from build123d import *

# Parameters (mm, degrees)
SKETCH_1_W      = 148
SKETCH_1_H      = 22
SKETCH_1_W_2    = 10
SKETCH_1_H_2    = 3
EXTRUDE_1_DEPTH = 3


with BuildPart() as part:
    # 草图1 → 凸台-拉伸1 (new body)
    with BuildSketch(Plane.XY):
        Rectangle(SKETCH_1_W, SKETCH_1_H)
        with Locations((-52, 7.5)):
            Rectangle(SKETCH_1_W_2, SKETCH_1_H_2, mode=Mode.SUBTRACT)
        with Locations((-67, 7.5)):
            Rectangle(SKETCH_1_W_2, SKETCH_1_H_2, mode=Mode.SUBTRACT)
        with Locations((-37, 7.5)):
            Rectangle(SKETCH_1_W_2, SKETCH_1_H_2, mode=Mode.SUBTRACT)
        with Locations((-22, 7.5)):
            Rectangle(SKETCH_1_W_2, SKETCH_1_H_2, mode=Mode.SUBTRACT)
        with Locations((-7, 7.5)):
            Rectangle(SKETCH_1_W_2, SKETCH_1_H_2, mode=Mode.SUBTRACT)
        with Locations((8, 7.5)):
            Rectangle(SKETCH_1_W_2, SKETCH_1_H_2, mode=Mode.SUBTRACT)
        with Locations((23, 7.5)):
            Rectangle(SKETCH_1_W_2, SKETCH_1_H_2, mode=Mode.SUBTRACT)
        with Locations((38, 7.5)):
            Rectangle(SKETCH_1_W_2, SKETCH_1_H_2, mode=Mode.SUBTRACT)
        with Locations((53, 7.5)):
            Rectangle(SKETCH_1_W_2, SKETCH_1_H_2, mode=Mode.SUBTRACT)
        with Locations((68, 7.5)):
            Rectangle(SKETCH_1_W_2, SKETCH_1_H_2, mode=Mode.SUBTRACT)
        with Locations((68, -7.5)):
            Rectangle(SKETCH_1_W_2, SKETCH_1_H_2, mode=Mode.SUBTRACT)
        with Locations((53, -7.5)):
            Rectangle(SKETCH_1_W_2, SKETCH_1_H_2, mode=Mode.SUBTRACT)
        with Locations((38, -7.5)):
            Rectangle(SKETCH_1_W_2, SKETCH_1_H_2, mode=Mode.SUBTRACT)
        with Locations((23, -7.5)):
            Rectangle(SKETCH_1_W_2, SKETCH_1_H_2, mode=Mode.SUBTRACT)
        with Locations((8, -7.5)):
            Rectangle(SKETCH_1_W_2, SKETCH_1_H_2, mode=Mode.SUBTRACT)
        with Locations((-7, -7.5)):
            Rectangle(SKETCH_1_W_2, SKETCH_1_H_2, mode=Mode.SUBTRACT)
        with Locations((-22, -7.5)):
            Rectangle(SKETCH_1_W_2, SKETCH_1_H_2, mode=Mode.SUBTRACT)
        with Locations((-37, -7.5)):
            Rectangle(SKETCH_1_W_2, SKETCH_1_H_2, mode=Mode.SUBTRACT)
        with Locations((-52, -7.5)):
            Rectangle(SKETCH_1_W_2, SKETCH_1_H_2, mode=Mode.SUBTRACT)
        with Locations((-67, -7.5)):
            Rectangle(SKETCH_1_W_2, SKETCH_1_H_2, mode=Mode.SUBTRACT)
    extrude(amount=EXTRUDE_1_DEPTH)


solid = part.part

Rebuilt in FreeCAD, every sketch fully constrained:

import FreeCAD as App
import Part
import Sketcher
Q = App.Units.Quantity

doc = App.newDocument("Part")
body = doc.addObject("PartDesign::Body", "Body")

# Sketch on XY plane
sketch1 = doc.addObject("Sketcher::SketchObject", "Sketch")
body.addObject(sketch1)
sketch1.AttachmentSupport = (doc.XY_Plane, [""])
sketch1.MapMode = "FlatFace"
sketch1.addGeometry(Part.LineSegment(App.Vector(-74, 11, 0), App.Vector(-74, -11, 0)), False)
sketch1.addGeometry(Part.LineSegment(App.Vector(-74, -11, 0), App.Vector(74, -11, 0)), False)
sketch1.addGeometry(Part.LineSegment(App.Vector(74, -11, 0), App.Vector(74, 11, 0)), False)
sketch1.addGeometry(Part.LineSegment(App.Vector(74, 11, 0), App.Vector(-74, 11, 0)), False)
sketch1.addGeometry(Part.LineSegment(App.Vector(-62, -9, 0), App.Vector(-72, -9, 0)), False)
sketch1.addGeometry(Part.LineSegment(App.Vector(-72, -9, 0), App.Vector(-72, -6, 0)), False)
sketch1.addGeometry(Part.LineSegment(App.Vector(-72, -6, 0), App.Vector(-62, -6, 0)), False)
sketch1.addGeometry(Part.LineSegment(App.Vector(-62, -6, 0), App.Vector(-62, -9, 0)), False)
sketch1.addGeometry(Part.LineSegment(App.Vector(-47, -9, 0), App.Vector(-57, -9, 0)), False)
sketch1.addGeometry(Part.LineSegment(App.Vector(-57, -9, 0), App.Vector(-57, -6, 0)), False)
sketch1.addGeometry(Part.LineSegment(App.Vector(-57, -6, 0), App.Vector(-47, -6, 0)), False)
sketch1.addGeometry(Part.LineSegment(App.Vector(-47, -6, 0), App.Vector(-47, -9, 0)), False)
sketch1.addGeometry(Part.LineSegment(App.Vector(-32, -9, 0), App.Vector(-42, -9, 0)), False)
sketch1.addGeometry(Part.LineSegment(App.Vector(-42, -9, 0), App.Vector(-42, -6, 0)), False)
sketch1.addGeometry(Part.LineSegment(App.Vector(-42, -6, 0), App.Vector(-32, -6, 0)), False)
sketch1.addGeometry(Part.LineSegment(App.Vector(-32, -6, 0), App.Vector(-32, -9, 0)), False)
sketch1.addGeometry(Part.LineSegment(App.Vector(-17, -9, 0), App.Vector(-27, -9, 0)), False)
sketch1.addGeometry(Part.LineSegment(App.Vector(-27, -9, 0), App.Vector(-27, -6, 0)), False)
sketch1.addGeometry(Part.LineSegment(App.Vector(-27, -6, 0), App.Vector(-17, -6, 0)), False)
sketch1.addGeometry(Part.LineSegment(App.Vector(-17, -6, 0), App.Vector(-17, -9, 0)), False)
sketch1.addGeometry(Part.LineSegment(App.Vector(-2, -9, 0), App.Vector(-12, -9, 0)), False)
sketch1.addGeometry(Part.LineSegment(App.Vector(-12, -9, 0), App.Vector(-12, -6, 0)), False)
sketch1.addGeometry(Part.LineSegment(App.Vector(-12, -6, 0), App.Vector(-2, -6, 0)), False)
sketch1.addGeometry(Part.LineSegment(App.Vector(-2, -6, 0), App.Vector(-2, -9, 0)), False)
sketch1.addGeometry(Part.LineSegment(App.Vector(13, -9, 0), App.Vector(3, -9, 0)), False)
sketch1.addGeometry(Part.LineSegment(App.Vector(3, -9, 0), App.Vector(3, -6, 0)), False)
sketch1.addGeometry(Part.LineSegment(App.Vector(3, -6, 0), App.Vector(13, -6, 0)), False)
sketch1.addGeometry(Part.LineSegment(App.Vector(13, -6, 0), App.Vector(13, -9, 0)), False)
sketch1.addGeometry(Part.LineSegment(App.Vector(28, -9, 0), App.Vector(18, -9, 0)), False)
sketch1.addGeometry(Part.LineSegment(App.Vector(18, -9, 0), App.Vector(18, -6, 0)), False)
sketch1.addGeometry(Part.LineSegment(App.Vector(18, -6, 0), App.Vector(28, -6, 0)), False)
sketch1.addGeometry(Part.LineSegment(App.Vector(28, -6, 0), App.Vector(28, -9, 0)), False)
sketch1.addGeometry(Part.LineSegment(App.Vector(43, -9, 0), App.Vector(33, -9, 0)), False)
sketch1.addGeometry(Part.LineSegment(App.Vector(33, -9, 0), App.Vector(33, -6, 0)), False)
sketch1.addGeometry(Part.LineSegment(App.Vector(33, -6, 0), App.Vector(43, -6, 0)), False)
sketch1.addGeometry(Part.LineSegment(App.Vector(43, -6, 0), App.Vector(43, -9, 0)), False)
sketch1.addGeometry(Part.LineSegment(App.Vector(58, -9, 0), App.Vector(48, -9, 0)), False)
sketch1.addGeometry(Part.LineSegment(App.Vector(48, -9, 0), App.Vector(48, -6, 0)), False)
sketch1.addGeometry(Part.LineSegment(App.Vector(48, -6, 0), App.Vector(58, -6, 0)), False)
sketch1.addGeometry(Part.LineSegment(App.Vector(58, -6, 0), App.Vector(58, -9, 0)), False)
sketch1.addGeometry(Part.LineSegment(App.Vector(73, -9, 0), App.Vector(63, -9, 0)), False)
sketch1.addGeometry(Part.LineSegment(App.Vector(63, -9, 0), App.Vector(63, -6, 0)), False)
sketch1.addGeometry(Part.LineSegment(App.Vector(63, -6, 0), App.Vector(73, -6, 0)), False)
sketch1.addGeometry(Part.LineSegment(App.Vector(73, -6, 0), App.Vector(73, -9, 0)), False)
sketch1.addGeometry(Part.LineSegment(App.Vector(-62, 6, 0), App.Vector(-72, 6, 0)), False)
sketch1.addGeometry(Part.LineSegment(App.Vector(-72, 6, 0), App.Vector(-72, 9, 0)), False)
sketch1.addGeometry(Part.LineSegment(App.Vector(-72, 9, 0), App.Vector(-62, 9, 0)), False)
sketch1.addGeometry(Part.LineSegment(App.Vector(-62, 9, 0), App.Vector(-62, 6, 0)), False)
sketch1.addGeometry(Part.LineSegment(App.Vector(-47, 6, 0), App.Vector(-57, 6, 0)), False)
sketch1.addGeometry(Part.LineSegment(App.Vector(-57, 6, 0), App.Vector(-57, 9, 0)), False)
sketch1.addGeometry(Part.LineSegment(App.Vector(-57, 9, 0), App.Vector(-47, 9, 0)), False)
sketch1.addGeometry(Part.LineSegment(App.Vector(-47, 9, 0), App.Vector(-47, 6, 0)), False)
sketch1.addGeometry(Part.LineSegment(App.Vector(-32, 6, 0), App.Vector(-42, 6, 0)), False)
sketch1.addGeometry(Part.LineSegment(App.Vector(-42, 6, 0), App.Vector(-42, 9, 0)), False)
sketch1.addGeometry(Part.LineSegment(App.Vector(-42, 9, 0), App.Vector(-32, 9, 0)), False)
sketch1.addGeometry(Part.LineSegment(App.Vector(-32, 9, 0), App.Vector(-32, 6, 0)), False)
sketch1.addGeometry(Part.LineSegment(App.Vector(-17, 6, 0), App.Vector(-27, 6, 0)), False)
sketch1.addGeometry(Part.LineSegment(App.Vector(-27, 6, 0), App.Vector(-27, 9, 0)), False)
sketch1.addGeometry(Part.LineSegment(App.Vector(-27, 9, 0), App.Vector(-17, 9, 0)), False)
sketch1.addGeometry(Part.LineSegment(App.Vector(-17, 9, 0), App.Vector(-17, 6, 0)), False)
sketch1.addGeometry(Part.LineSegment(App.Vector(-2, 6, 0), App.Vector(-12, 6, 0)), False)
sketch1.addGeometry(Part.LineSegment(App.Vector(-12, 6, 0), App.Vector(-12, 9, 0)), False)
sketch1.addGeometry(Part.LineSegment(App.Vector(-12, 9, 0), App.Vector(-2, 9, 0)), False)
sketch1.addGeometry(Part.LineSegment(App.Vector(-2, 9, 0), App.Vector(-2, 6, 0)), False)
sketch1.addGeometry(Part.LineSegment(App.Vector(13, 6, 0), App.Vector(3, 6, 0)), False)
sketch1.addGeometry(Part.LineSegment(App.Vector(3, 6, 0), App.Vector(3, 9, 0)), False)
sketch1.addGeometry(Part.LineSegment(App.Vector(3, 9, 0), App.Vector(13, 9, 0)), False)
sketch1.addGeometry(Part.LineSegment(App.Vector(13, 9, 0), App.Vector(13, 6, 0)), False)
sketch1.addGeometry(Part.LineSegment(App.Vector(28, 6, 0), App.Vector(18, 6, 0)), False)
sketch1.addGeometry(Part.LineSegment(App.Vector(18, 6, 0), App.Vector(18, 9, 0)), False)
sketch1.addGeometry(Part.LineSegment(App.Vector(18, 9, 0), App.Vector(28, 9, 0)), False)
sketch1.addGeometry(Part.LineSegment(App.Vector(28, 9, 0), App.Vector(28, 6, 0)), False)
sketch1.addGeometry(Part.LineSegment(App.Vector(43, 6, 0), App.Vector(33, 6, 0)), False)
sketch1.addGeometry(Part.LineSegment(App.Vector(33, 6, 0), App.Vector(33, 9, 0)), False)
sketch1.addGeometry(Part.LineSegment(App.Vector(33, 9, 0), App.Vector(43, 9, 0)), False)
sketch1.addGeometry(Part.LineSegment(App.Vector(43, 9, 0), App.Vector(43, 6, 0)), False)
sketch1.addGeometry(Part.LineSegment(App.Vector(58, 6, 0), App.Vector(48, 6, 0)), False)
sketch1.addGeometry(Part.LineSegment(App.Vector(48, 6, 0), App.Vector(48, 9, 0)), False)
sketch1.addGeometry(Part.LineSegment(App.Vector(48, 9, 0), App.Vector(58, 9, 0)), False)
sketch1.addGeometry(Part.LineSegment(App.Vector(58, 9, 0), App.Vector(58, 6, 0)), False)
sketch1.addGeometry(Part.LineSegment(App.Vector(73, 6, 0), App.Vector(63, 6, 0)), False)
sketch1.addGeometry(Part.LineSegment(App.Vector(63, 6, 0), App.Vector(63, 9, 0)), False)
sketch1.addGeometry(Part.LineSegment(App.Vector(63, 9, 0), App.Vector(73, 9, 0)), False)
sketch1.addGeometry(Part.LineSegment(App.Vector(73, 9, 0), App.Vector(73, 6, 0)), False)
sketch1.addConstraint(Sketcher.Constraint("Coincident", 0, 2, 1, 1))
sketch1.addConstraint(Sketcher.Constraint("Coincident", 1, 2, 2, 1))
sketch1.addConstraint(Sketcher.Constraint("Coincident", 2, 2, 3, 1))
sketch1.addConstraint(Sketcher.Constraint("Coincident", 3, 2, 0, 1))
sketch1.addConstraint(Sketcher.Constraint("Coincident", 4, 2, 5, 1))
sketch1.addConstraint(Sketcher.Constraint("Coincident", 5, 2, 6, 1))
sketch1.addConstraint(Sketcher.Constraint("Coincident", 6, 2, 7, 1))
sketch1.addConstraint(Sketcher.Constraint("Coincident", 7, 2, 4, 1))
sketch1.addConstraint(Sketcher.Constraint("Coincident", 8, 2, 9, 1))
sketch1.addConstraint(Sketcher.Constraint("Coincident", 9, 2, 10, 1))
sketch1.addConstraint(Sketcher.Constraint("Coincident", 10, 2, 11, 1))
sketch1.addConstraint(Sketcher.Constraint("Coincident", 11, 2, 8, 1))
sketch1.addConstraint(Sketcher.Constraint("Coincident", 12, 2, 13, 1))
sketch1.addConstraint(Sketcher.Constraint("Coincident", 13, 2, 14, 1))
sketch1.addConstraint(Sketcher.Constraint("Coincident", 14, 2, 15, 1))
sketch1.addConstraint(Sketcher.Constraint("Coincident", 15, 2, 12, 1))
sketch1.addConstraint(Sketcher.Constraint("Coincident", 16, 2, 17, 1))
sketch1.addConstraint(Sketcher.Constraint("Coincident", 17, 2, 18, 1))
sketch1.addConstraint(Sketcher.Constraint("Coincident", 18, 2, 19, 1))
sketch1.addConstraint(Sketcher.Constraint("Coincident", 19, 2, 16, 1))
sketch1.addConstraint(Sketcher.Constraint("Coincident", 20, 2, 21, 1))
sketch1.addConstraint(Sketcher.Constraint("Coincident", 21, 2, 22, 1))
sketch1.addConstraint(Sketcher.Constraint("Coincident", 22, 2, 23, 1))
sketch1.addConstraint(Sketcher.Constraint("Coincident", 23, 2, 20, 1))
sketch1.addConstraint(Sketcher.Constraint("Coincident", 24, 2, 25, 1))
sketch1.addConstraint(Sketcher.Constraint("Coincident", 25, 2, 26, 1))
sketch1.addConstraint(Sketcher.Constraint("Coincident", 26, 2, 27, 1))
sketch1.addConstraint(Sketcher.Constraint("Coincident", 27, 2, 24, 1))
sketch1.addConstraint(Sketcher.Constraint("Coincident", 28, 2, 29, 1))
sketch1.addConstraint(Sketcher.Constraint("Coincident", 29, 2, 30, 1))
sketch1.addConstraint(Sketcher.Constraint("Coincident", 30, 2, 31, 1))
sketch1.addConstraint(Sketcher.Constraint("Coincident", 31, 2, 28, 1))
sketch1.addConstraint(Sketcher.Constraint("Coincident", 32, 2, 33, 1))
sketch1.addConstraint(Sketcher.Constraint("Coincident", 33, 2, 34, 1))
sketch1.addConstraint(Sketcher.Constraint("Coincident", 34, 2, 35, 1))
sketch1.addConstraint(Sketcher.Constraint("Coincident", 35, 2, 32, 1))
sketch1.addConstraint(Sketcher.Constraint("Coincident", 36, 2, 37, 1))
sketch1.addConstraint(Sketcher.Constraint("Coincident", 37, 2, 38, 1))
sketch1.addConstraint(Sketcher.Constraint("Coincident", 38, 2, 39, 1))
sketch1.addConstraint(Sketcher.Constraint("Coincident", 39, 2, 36, 1))
sketch1.addConstraint(Sketcher.Constraint("Coincident", 40, 2, 41, 1))
sketch1.addConstraint(Sketcher.Constraint("Coincident", 41, 2, 42, 1))
sketch1.addConstraint(Sketcher.Constraint("Coincident", 42, 2, 43, 1))
sketch1.addConstraint(Sketcher.Constraint("Coincident", 43, 2, 40, 1))
sketch1.addConstraint(Sketcher.Constraint("Coincident", 44, 2, 45, 1))
sketch1.addConstraint(Sketcher.Constraint("Coincident", 45, 2, 46, 1))
sketch1.addConstraint(Sketcher.Constraint("Coincident", 46, 2, 47, 1))
sketch1.addConstraint(Sketcher.Constraint("Coincident", 47, 2, 44, 1))
sketch1.addConstraint(Sketcher.Constraint("Coincident", 48, 2, 49, 1))
sketch1.addConstraint(Sketcher.Constraint("Coincident", 49, 2, 50, 1))
sketch1.addConstraint(Sketcher.Constraint("Coincident", 50, 2, 51, 1))
sketch1.addConstraint(Sketcher.Constraint("Coincident", 51, 2, 48, 1))
sketch1.addConstraint(Sketcher.Constraint("Coincident", 52, 2, 53, 1))
sketch1.addConstraint(Sketcher.Constraint("Coincident", 53, 2, 54, 1))
sketch1.addConstraint(Sketcher.Constraint("Coincident", 54, 2, 55, 1))
sketch1.addConstraint(Sketcher.Constraint("Coincident", 55, 2, 52, 1))
sketch1.addConstraint(Sketcher.Constraint("Coincident", 56, 2, 57, 1))
sketch1.addConstraint(Sketcher.Constraint("Coincident", 57, 2, 58, 1))
sketch1.addConstraint(Sketcher.Constraint("Coincident", 58, 2, 59, 1))
sketch1.addConstraint(Sketcher.Constraint("Coincident", 59, 2, 56, 1))
sketch1.addConstraint(Sketcher.Constraint("Coincident", 60, 2, 61, 1))
sketch1.addConstraint(Sketcher.Constraint("Coincident", 61, 2, 62, 1))
sketch1.addConstraint(Sketcher.Constraint("Coincident", 62, 2, 63, 1))
sketch1.addConstraint(Sketcher.Constraint("Coincident", 63, 2, 60, 1))
sketch1.addConstraint(Sketcher.Constraint("Coincident", 64, 2, 65, 1))
sketch1.addConstraint(Sketcher.Constraint("Coincident", 65, 2, 66, 1))
sketch1.addConstraint(Sketcher.Constraint("Coincident", 66, 2, 67, 1))
sketch1.addConstraint(Sketcher.Constraint("Coincident", 67, 2, 64, 1))
sketch1.addConstraint(Sketcher.Constraint("Coincident", 68, 2, 69, 1))
sketch1.addConstraint(Sketcher.Constraint("Coincident", 69, 2, 70, 1))
sketch1.addConstraint(Sketcher.Constraint("Coincident", 70, 2, 71, 1))
sketch1.addConstraint(Sketcher.Constraint("Coincident", 71, 2, 68, 1))
sketch1.addConstraint(Sketcher.Constraint("Coincident", 72, 2, 73, 1))
sketch1.addConstraint(Sketcher.Constraint("Coincident", 73, 2, 74, 1))
sketch1.addConstraint(Sketcher.Constraint("Coincident", 74, 2, 75, 1))
sketch1.addConstraint(Sketcher.Constraint("Coincident", 75, 2, 72, 1))
sketch1.addConstraint(Sketcher.Constraint("Coincident", 76, 2, 77, 1))
sketch1.addConstraint(Sketcher.Constraint("Coincident", 77, 2, 78, 1))
sketch1.addConstraint(Sketcher.Constraint("Coincident", 78, 2, 79, 1))
sketch1.addConstraint(Sketcher.Constraint("Coincident", 79, 2, 76, 1))
sketch1.addConstraint(Sketcher.Constraint("Coincident", 80, 2, 81, 1))
sketch1.addConstraint(Sketcher.Constraint("Coincident", 81, 2, 82, 1))
sketch1.addConstraint(Sketcher.Constraint("Coincident", 82, 2, 83, 1))
sketch1.addConstraint(Sketcher.Constraint("Coincident", 83, 2, 80, 1))
sketch1.addConstraint(Sketcher.Constraint("Vertical", 0))
sketch1.addConstraint(Sketcher.Constraint("Horizontal", 1))
sketch1.addConstraint(Sketcher.Constraint("Vertical", 2))
sketch1.addConstraint(Sketcher.Constraint("Horizontal", 3))
sketch1.addConstraint(Sketcher.Constraint("Horizontal", 4))
sketch1.addConstraint(Sketcher.Constraint("Vertical", 5))
sketch1.addConstraint(Sketcher.Constraint("Horizontal", 6))
sketch1.addConstraint(Sketcher.Constraint("Vertical", 7))
sketch1.addConstraint(Sketcher.Constraint("Horizontal", 8))
sketch1.addConstraint(Sketcher.Constraint("Vertical", 9))
sketch1.addConstraint(Sketcher.Constraint("Horizontal", 10))
sketch1.addConstraint(Sketcher.Constraint("Vertical", 11))
sketch1.addConstraint(Sketcher.Constraint("Horizontal", 12))
sketch1.addConstraint(Sketcher.Constraint("Vertical", 13))
sketch1.addConstraint(Sketcher.Constraint("Horizontal", 14))
sketch1.addConstraint(Sketcher.Constraint("Vertical", 15))
sketch1.addConstraint(Sketcher.Constraint("Horizontal", 16))
sketch1.addConstraint(Sketcher.Constraint("Vertical", 17))
sketch1.addConstraint(Sketcher.Constraint("Horizontal", 18))
sketch1.addConstraint(Sketcher.Constraint("Vertical", 19))
sketch1.addConstraint(Sketcher.Constraint("Horizontal", 20))
sketch1.addConstraint(Sketcher.Constraint("Vertical", 21))
sketch1.addConstraint(Sketcher.Constraint("Horizontal", 22))
sketch1.addConstraint(Sketcher.Constraint("Vertical", 23))
sketch1.addConstraint(Sketcher.Constraint("Horizontal", 24))
sketch1.addConstraint(Sketcher.Constraint("Vertical", 25))
sketch1.addConstraint(Sketcher.Constraint("Horizontal", 26))
sketch1.addConstraint(Sketcher.Constraint("Vertical", 27))
sketch1.addConstraint(Sketcher.Constraint("Horizontal", 28))
sketch1.addConstraint(Sketcher.Constraint("Vertical", 29))
sketch1.addConstraint(Sketcher.Constraint("Horizontal", 30))
sketch1.addConstraint(Sketcher.Constraint("Vertical", 31))
sketch1.addConstraint(Sketcher.Constraint("Horizontal", 32))
sketch1.addConstraint(Sketcher.Constraint("Vertical", 33))
sketch1.addConstraint(Sketcher.Constraint("Horizontal", 34))
sketch1.addConstraint(Sketcher.Constraint("Vertical", 35))
sketch1.addConstraint(Sketcher.Constraint("Horizontal", 36))
sketch1.addConstraint(Sketcher.Constraint("Vertical", 37))
sketch1.addConstraint(Sketcher.Constraint("Horizontal", 38))
sketch1.addConstraint(Sketcher.Constraint("Vertical", 39))
sketch1.addConstraint(Sketcher.Constraint("Horizontal", 40))
sketch1.addConstraint(Sketcher.Constraint("Vertical", 41))
sketch1.addConstraint(Sketcher.Constraint("Horizontal", 42))
sketch1.addConstraint(Sketcher.Constraint("Vertical", 43))
sketch1.addConstraint(Sketcher.Constraint("Horizontal", 44))
sketch1.addConstraint(Sketcher.Constraint("Vertical", 45))
sketch1.addConstraint(Sketcher.Constraint("Horizontal", 46))
sketch1.addConstraint(Sketcher.Constraint("Vertical", 47))
sketch1.addConstraint(Sketcher.Constraint("Horizontal", 48))
sketch1.addConstraint(Sketcher.Constraint("Vertical", 49))
sketch1.addConstraint(Sketcher.Constraint("Horizontal", 50))
sketch1.addConstraint(Sketcher.Constraint("Vertical", 51))
sketch1.addConstraint(Sketcher.Constraint("Horizontal", 52))
sketch1.addConstraint(Sketcher.Constraint("Vertical", 53))
sketch1.addConstraint(Sketcher.Constraint("Horizontal", 54))
sketch1.addConstraint(Sketcher.Constraint("Vertical", 55))
sketch1.addConstraint(Sketcher.Constraint("Horizontal", 56))
sketch1.addConstraint(Sketcher.Constraint("Vertical", 57))
sketch1.addConstraint(Sketcher.Constraint("Horizontal", 58))
sketch1.addConstraint(Sketcher.Constraint("Vertical", 59))
sketch1.addConstraint(Sketcher.Constraint("Horizontal", 60))
sketch1.addConstraint(Sketcher.Constraint("Vertical", 61))
sketch1.addConstraint(Sketcher.Constraint("Horizontal", 62))
sketch1.addConstraint(Sketcher.Constraint("Vertical", 63))
sketch1.addConstraint(Sketcher.Constraint("Horizontal", 64))
sketch1.addConstraint(Sketcher.Constraint("Vertical", 65))
sketch1.addConstraint(Sketcher.Constraint("Horizontal", 66))
sketch1.addConstraint(Sketcher.Constraint("Vertical", 67))
sketch1.addConstraint(Sketcher.Constraint("Horizontal", 68))
sketch1.addConstraint(Sketcher.Constraint("Vertical", 69))
sketch1.addConstraint(Sketcher.Constraint("Horizontal", 70))
sketch1.addConstraint(Sketcher.Constraint("Vertical", 71))
sketch1.addConstraint(Sketcher.Constraint("Horizontal", 72))
sketch1.addConstraint(Sketcher.Constraint("Vertical", 73))
sketch1.addConstraint(Sketcher.Constraint("Horizontal", 74))
sketch1.addConstraint(Sketcher.Constraint("Vertical", 75))
sketch1.addConstraint(Sketcher.Constraint("Horizontal", 76))
sketch1.addConstraint(Sketcher.Constraint("Vertical", 77))
sketch1.addConstraint(Sketcher.Constraint("Horizontal", 78))
sketch1.addConstraint(Sketcher.Constraint("Vertical", 79))
sketch1.addConstraint(Sketcher.Constraint("Horizontal", 80))
sketch1.addConstraint(Sketcher.Constraint("Vertical", 81))
sketch1.addConstraint(Sketcher.Constraint("Horizontal", 82))
sketch1.addConstraint(Sketcher.Constraint("Vertical", 83))
sketch1.addConstraint(Sketcher.Constraint("Symmetric", 0, 2, 2, 2, -1, 1))
sketch1.addConstraint(Sketcher.Constraint("Symmetric", 5, 2, 44, 2, -1))
sketch1.addConstraint(Sketcher.Constraint("Symmetric", 7, 2, 46, 2, -1))
sketch1.addConstraint(Sketcher.Constraint("Symmetric", 9, 2, 48, 2, -1))
sketch1.addConstraint(Sketcher.Constraint("Symmetric", 11, 2, 50, 2, -1))
sketch1.addConstraint(Sketcher.Constraint("Symmetric", 13, 2, 52, 2, -1))
sketch1.addConstraint(Sketcher.Constraint("Symmetric", 15, 2, 54, 2, -1))
sketch1.addConstraint(Sketcher.Constraint("Symmetric", 17, 2, 56, 2, -1))
sketch1.addConstraint(Sketcher.Constraint("Symmetric", 19, 2, 58, 2, -1))
sketch1.addConstraint(Sketcher.Constraint("Symmetric", 21, 2, 60, 2, -1))
sketch1.addConstraint(Sketcher.Constraint("Symmetric", 23, 2, 62, 2, -1))
sketch1.addConstraint(Sketcher.Constraint("Symmetric", 25, 2, 64, 2, -1))
sketch1.addConstraint(Sketcher.Constraint("Symmetric", 27, 2, 66, 2, -1))
sketch1.addConstraint(Sketcher.Constraint("Symmetric", 29, 2, 68, 2, -1))
sketch1.addConstraint(Sketcher.Constraint("Symmetric", 31, 2, 70, 2, -1))
sketch1.addConstraint(Sketcher.Constraint("Symmetric", 33, 2, 72, 2, -1))
sketch1.addConstraint(Sketcher.Constraint("Symmetric", 35, 2, 74, 2, -1))
sketch1.addConstraint(Sketcher.Constraint("Symmetric", 37, 2, 76, 2, -1))
sketch1.addConstraint(Sketcher.Constraint("Symmetric", 39, 2, 78, 2, -1))
sketch1.addConstraint(Sketcher.Constraint("Symmetric", 41, 2, 80, 2, -1))
sketch1.addConstraint(Sketcher.Constraint("Symmetric", 43, 2, 82, 2, -1))
sketch1.addConstraint(Sketcher.Constraint("Horizontal", 7, 2, 8, 2))
sketch1.addConstraint(Sketcher.Constraint("Horizontal", 6, 2, 9, 2))
sketch1.addConstraint(Sketcher.Constraint("Horizontal", 11, 2, 12, 2))
sketch1.addConstraint(Sketcher.Constraint("Horizontal", 10, 2, 13, 2))
sketch1.addConstraint(Sketcher.Constraint("Horizontal", 15, 2, 16, 2))
sketch1.addConstraint(Sketcher.Constraint("Horizontal", 14, 2, 17, 2))
sketch1.addConstraint(Sketcher.Constraint("Horizontal", 19, 2, 20, 2))
sketch1.addConstraint(Sketcher.Constraint("Horizontal", 18, 2, 21, 2))
sketch1.addConstraint(Sketcher.Constraint("Horizontal", 23, 2, 24, 2))
sketch1.addConstraint(Sketcher.Constraint("Horizontal", 22, 2, 25, 2))
sketch1.addConstraint(Sketcher.Constraint("Horizontal", 27, 2, 28, 2))
sketch1.addConstraint(Sketcher.Constraint("Horizontal", 26, 2, 29, 2))
sketch1.addConstraint(Sketcher.Constraint("Horizontal", 31, 2, 32, 2))
sketch1.addConstraint(Sketcher.Constraint("Horizontal", 30, 2, 33, 2))
sketch1.addConstraint(Sketcher.Constraint("Horizontal", 35, 2, 36, 2))
sketch1.addConstraint(Sketcher.Constraint("Horizontal", 34, 2, 37, 2))
sketch1.addConstraint(Sketcher.Constraint("Horizontal", 39, 2, 40, 2))
sketch1.addConstraint(Sketcher.Constraint("Horizontal", 38, 2, 41, 2))
sketch1.addConstraint(Sketcher.Constraint("Equal", 6, 8))
sketch1.addConstraint(Sketcher.Constraint("Equal", 10, 12))
sketch1.addConstraint(Sketcher.Constraint("Equal", 14, 16))
sketch1.addConstraint(Sketcher.Constraint("Equal", 18, 20))
sketch1.addConstraint(Sketcher.Constraint("Equal", 22, 24))
sketch1.addConstraint(Sketcher.Constraint("Equal", 26, 28))
sketch1.addConstraint(Sketcher.Constraint("Equal", 30, 32))
sketch1.addConstraint(Sketcher.Constraint("Equal", 34, 36))
sketch1.addConstraint(Sketcher.Constraint("Equal", 38, 40))
sketch1.addConstraint(Sketcher.Constraint("DistanceX", 1, 1, 1, 2, Q("148 mm")))
sketch1.addConstraint(Sketcher.Constraint("DistanceX", 4, 2, 4, 1, Q("10 mm")))
sketch1.addConstraint(Sketcher.Constraint("DistanceY", 0, 2, 0, 1, Q("22 mm")))
sketch1.addConstraint(Sketcher.Constraint("DistanceY", 5, 1, 5, 2, Q("3 mm")))
sketch1.addConstraint(Sketcher.Constraint("DistanceX", 4, 2, -1, 1, Q("72 mm")))
sketch1.addConstraint(Sketcher.Constraint("DistanceY", 4, 2, -1, 1, Q("9 mm")))
sketch1.addConstraint(Sketcher.Constraint("DistanceX", 8, 2, -1, 1, Q("57 mm")))
sketch1.addConstraint(Sketcher.Constraint("DistanceX", 12, 2, -1, 1, Q("42 mm")))
sketch1.addConstraint(Sketcher.Constraint("DistanceX", 16, 2, -1, 1, Q("27 mm")))
sketch1.addConstraint(Sketcher.Constraint("DistanceX", 20, 2, -1, 1, Q("12 mm")))
sketch1.addConstraint(Sketcher.Constraint("DistanceX", -1, 1, 24, 2, Q("3 mm")))
sketch1.addConstraint(Sketcher.Constraint("DistanceX", -1, 1, 28, 2, Q("18 mm")))
sketch1.addConstraint(Sketcher.Constraint("DistanceX", -1, 1, 32, 2, Q("33 mm")))
sketch1.addConstraint(Sketcher.Constraint("DistanceX", -1, 1, 36, 2, Q("48 mm")))
sketch1.addConstraint(Sketcher.Constraint("DistanceX", -1, 1, 40, 2, Q("63 mm")))
pad1 = doc.addObject("PartDesign::Pad", "Pad")
body.addObject(pad1)
pad1.Profile = sketch1
pad1.Length = 3

doc.recompute()
